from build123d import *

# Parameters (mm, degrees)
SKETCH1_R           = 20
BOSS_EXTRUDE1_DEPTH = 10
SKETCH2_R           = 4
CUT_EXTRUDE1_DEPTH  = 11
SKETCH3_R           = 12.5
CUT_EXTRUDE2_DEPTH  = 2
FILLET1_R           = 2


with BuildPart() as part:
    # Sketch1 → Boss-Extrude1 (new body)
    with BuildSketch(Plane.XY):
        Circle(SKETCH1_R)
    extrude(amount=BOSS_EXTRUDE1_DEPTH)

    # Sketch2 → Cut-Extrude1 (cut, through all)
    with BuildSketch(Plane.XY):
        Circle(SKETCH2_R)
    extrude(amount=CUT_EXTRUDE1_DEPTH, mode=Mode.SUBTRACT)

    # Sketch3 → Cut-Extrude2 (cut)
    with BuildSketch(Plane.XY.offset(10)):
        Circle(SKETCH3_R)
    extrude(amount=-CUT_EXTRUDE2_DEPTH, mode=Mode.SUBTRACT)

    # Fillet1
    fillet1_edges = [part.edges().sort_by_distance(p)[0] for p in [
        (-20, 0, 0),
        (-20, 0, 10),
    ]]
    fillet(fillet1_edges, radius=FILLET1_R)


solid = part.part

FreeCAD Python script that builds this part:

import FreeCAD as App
import Part
import Sketcher

V = App.Vector
Q = App.Units.Quantity


def edges_at(feature, points):
    """Names of the edges that pass closest to the given points."""
    edges = feature.Shape.Edges
    near = lambda p: min(range(len(edges)), key=lambda i: edges[i].distToShape(Part.Vertex(*p))[0])
    return sorted({f"Edge{near(p) + 1}" for p in points})

doc = App.newDocument("Part")
body = doc.addObject("PartDesign::Body", "Body")

sketch1 = body.newObject("Sketcher::SketchObject", "Sketch")
sketch1.AttachmentSupport = (doc.getObject("XY_Plane"), [""])
sketch1.MapMode = "FlatFace"
sketch1.addGeometry(Part.Circle(V(0, 0, 0), V(0, 0, 1), 20), False)
sketch1.addConstraint(Sketcher.Constraint("Coincident", 0, 3, -1, 1))
sketch1.addConstraint(Sketcher.Constraint("Diameter", 0, Q("40 mm")))
pad1 = body.newObject("PartDesign::Pad", "Pad")
pad1.Profile = sketch1
pad1.Length = 10

sketch2 = body.newObject("Sketcher::SketchObject", "Sketch001")
sketch2.AttachmentSupport = (doc.getObject("XY_Plane"), [""])
sketch2.MapMode = "FlatFace"
sketch2.addGeometry(Part.Circle(V(0, 0, 0), V(0, 0, 1), 4), False)
sketch2.addConstraint(Sketcher.Constraint("Coincident", 0, 3, -1, 1))
sketch2.addConstraint(Sketcher.Constraint("Diameter", 0, Q("8 mm")))
pocket1 = body.newObject("PartDesign::Pocket", "Pocket")
pocket1.Profile = sketch2
pocket1.Type = "ThroughAll"
pocket1.Reversed = True

sketch3 = body.newObject("Sketcher::SketchObject", "Sketch002")
sketch3.AttachmentSupport = (doc.getObject("XY_Plane"), [""])
sketch3.MapMode = "FlatFace"
sketch3.AttachmentOffset = App.Placement(V(0, 0, 10), App.Rotation())
sketch3.addGeometry(Part.Circle(V(0, 0, 0), V(0, 0, 1), 12), False)
sketch3.addConstraint(Sketcher.Constraint("Coincident", 0, 3, -1, 1))
sketch3.addConstraint(Sketcher.Constraint("Diameter", 0, Q("25 mm")))
pocket2 = body.newObject("PartDesign::Pocket", "Pocket001")
pocket2.Profile = sketch3
pocket2.Length = 2
doc.recompute()

fillet = body.newObject("PartDesign::Fillet", "Fillet")
fillet.Base = (pocket2, edges_at(pocket2, [(-20, 0, 0), (-20, 0, 10)]))
fillet.Radius = 2

doc.recompute()
